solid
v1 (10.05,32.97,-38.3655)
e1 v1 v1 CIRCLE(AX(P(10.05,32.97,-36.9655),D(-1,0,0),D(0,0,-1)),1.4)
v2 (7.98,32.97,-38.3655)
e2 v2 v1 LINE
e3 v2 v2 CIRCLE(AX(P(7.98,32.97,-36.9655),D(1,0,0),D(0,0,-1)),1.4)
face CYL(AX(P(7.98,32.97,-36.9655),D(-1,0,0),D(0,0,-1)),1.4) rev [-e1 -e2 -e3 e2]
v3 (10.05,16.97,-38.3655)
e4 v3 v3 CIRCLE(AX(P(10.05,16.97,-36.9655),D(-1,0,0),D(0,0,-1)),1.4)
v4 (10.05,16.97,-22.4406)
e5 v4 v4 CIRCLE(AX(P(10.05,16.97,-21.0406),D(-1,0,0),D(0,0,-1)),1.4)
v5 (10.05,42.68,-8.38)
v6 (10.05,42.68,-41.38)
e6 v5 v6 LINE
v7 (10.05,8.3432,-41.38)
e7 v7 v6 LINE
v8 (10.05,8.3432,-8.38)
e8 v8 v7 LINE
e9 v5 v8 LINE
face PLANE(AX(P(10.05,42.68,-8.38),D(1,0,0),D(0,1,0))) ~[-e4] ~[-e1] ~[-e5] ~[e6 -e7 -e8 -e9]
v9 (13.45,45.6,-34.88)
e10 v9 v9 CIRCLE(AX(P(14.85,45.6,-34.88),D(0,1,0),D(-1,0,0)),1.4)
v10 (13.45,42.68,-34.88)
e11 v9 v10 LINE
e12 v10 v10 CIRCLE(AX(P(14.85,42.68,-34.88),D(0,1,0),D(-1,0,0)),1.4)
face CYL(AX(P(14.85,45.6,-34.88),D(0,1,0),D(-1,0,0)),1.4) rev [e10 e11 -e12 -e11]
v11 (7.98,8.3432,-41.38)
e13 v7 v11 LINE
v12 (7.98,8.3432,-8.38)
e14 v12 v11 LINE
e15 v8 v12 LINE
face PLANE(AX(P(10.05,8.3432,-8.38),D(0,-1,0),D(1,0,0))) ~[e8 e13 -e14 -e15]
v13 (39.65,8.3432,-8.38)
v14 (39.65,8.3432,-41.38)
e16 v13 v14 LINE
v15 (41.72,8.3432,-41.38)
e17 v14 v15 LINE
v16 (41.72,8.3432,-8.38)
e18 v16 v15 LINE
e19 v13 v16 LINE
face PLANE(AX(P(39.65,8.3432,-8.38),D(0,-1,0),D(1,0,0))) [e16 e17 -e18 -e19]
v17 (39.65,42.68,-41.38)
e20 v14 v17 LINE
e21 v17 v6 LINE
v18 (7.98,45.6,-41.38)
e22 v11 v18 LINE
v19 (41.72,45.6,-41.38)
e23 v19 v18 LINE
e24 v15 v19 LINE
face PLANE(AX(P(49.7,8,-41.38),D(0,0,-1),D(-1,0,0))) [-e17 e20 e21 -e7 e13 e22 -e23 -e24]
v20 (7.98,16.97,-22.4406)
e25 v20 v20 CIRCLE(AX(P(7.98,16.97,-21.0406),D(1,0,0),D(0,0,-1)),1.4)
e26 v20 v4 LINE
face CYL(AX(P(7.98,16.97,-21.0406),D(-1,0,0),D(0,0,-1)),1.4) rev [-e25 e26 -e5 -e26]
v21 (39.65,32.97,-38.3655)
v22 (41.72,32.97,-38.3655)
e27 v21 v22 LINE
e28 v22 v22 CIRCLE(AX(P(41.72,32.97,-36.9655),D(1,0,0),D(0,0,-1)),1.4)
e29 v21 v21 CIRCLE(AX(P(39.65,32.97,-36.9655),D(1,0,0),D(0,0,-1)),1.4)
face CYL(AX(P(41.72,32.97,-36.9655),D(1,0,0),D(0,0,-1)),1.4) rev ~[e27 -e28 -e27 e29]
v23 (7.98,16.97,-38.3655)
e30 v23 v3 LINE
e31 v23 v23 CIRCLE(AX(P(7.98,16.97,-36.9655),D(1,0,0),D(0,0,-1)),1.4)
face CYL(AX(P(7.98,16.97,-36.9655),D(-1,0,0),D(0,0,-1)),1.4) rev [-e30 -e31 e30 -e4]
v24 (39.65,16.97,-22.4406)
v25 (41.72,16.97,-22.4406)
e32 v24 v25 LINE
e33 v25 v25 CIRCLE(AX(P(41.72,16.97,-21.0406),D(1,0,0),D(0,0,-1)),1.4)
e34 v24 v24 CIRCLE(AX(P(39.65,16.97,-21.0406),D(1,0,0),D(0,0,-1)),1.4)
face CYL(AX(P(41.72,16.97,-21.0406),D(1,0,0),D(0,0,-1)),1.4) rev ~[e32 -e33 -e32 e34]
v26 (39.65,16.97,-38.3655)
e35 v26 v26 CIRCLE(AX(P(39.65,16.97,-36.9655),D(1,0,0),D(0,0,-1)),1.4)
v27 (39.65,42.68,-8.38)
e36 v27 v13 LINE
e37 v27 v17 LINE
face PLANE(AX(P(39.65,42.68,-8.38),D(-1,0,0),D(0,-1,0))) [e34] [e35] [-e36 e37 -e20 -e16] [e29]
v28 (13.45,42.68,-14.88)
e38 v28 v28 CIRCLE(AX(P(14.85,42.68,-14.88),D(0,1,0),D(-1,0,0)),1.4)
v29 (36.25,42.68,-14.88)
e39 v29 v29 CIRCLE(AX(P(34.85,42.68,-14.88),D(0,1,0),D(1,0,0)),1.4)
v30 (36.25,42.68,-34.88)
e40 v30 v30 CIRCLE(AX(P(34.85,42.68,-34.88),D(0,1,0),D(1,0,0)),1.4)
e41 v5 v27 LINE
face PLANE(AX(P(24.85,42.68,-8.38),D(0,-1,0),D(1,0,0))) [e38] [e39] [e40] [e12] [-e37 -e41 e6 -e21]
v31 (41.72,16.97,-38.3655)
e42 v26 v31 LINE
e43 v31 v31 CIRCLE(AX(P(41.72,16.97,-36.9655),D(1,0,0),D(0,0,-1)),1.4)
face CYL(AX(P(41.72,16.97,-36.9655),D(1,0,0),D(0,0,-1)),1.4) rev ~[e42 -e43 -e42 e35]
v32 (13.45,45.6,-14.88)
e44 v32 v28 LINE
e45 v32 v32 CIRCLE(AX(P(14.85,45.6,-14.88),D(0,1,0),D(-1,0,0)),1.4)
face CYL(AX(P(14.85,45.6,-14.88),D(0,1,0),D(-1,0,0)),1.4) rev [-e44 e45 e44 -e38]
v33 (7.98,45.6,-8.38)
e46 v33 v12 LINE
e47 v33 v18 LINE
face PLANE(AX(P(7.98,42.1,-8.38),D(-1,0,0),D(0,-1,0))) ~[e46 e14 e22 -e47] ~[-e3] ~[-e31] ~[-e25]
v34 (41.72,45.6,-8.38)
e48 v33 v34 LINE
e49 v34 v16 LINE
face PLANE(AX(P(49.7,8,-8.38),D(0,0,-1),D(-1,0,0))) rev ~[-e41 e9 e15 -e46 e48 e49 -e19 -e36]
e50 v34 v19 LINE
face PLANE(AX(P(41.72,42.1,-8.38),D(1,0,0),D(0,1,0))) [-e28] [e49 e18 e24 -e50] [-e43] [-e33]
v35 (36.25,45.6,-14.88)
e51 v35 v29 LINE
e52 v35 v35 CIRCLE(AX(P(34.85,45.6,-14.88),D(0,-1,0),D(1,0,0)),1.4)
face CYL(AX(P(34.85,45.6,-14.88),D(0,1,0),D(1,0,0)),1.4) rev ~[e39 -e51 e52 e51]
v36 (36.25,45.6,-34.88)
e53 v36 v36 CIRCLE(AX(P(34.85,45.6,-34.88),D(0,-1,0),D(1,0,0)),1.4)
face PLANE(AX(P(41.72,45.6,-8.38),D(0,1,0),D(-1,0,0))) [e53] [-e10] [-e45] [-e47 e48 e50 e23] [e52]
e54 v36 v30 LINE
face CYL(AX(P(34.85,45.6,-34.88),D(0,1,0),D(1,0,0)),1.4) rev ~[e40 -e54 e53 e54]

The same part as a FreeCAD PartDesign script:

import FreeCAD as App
import Part
import Sketcher
Q = App.Units.Quantity


def add_polygon(sketch, points):
    """Adds a closed chain of lines whose ends are joined by coincident constraints."""
    first, n = sketch.GeometryCount, len(points)
    for a, b in zip(points, points[1:] + points[:1]):
        sketch.addGeometry(Part.LineSegment(App.Vector(*a, 0), App.Vector(*b, 0)), False)
    for i in range(n):
        sketch.addConstraint(Sketcher.Constraint("Coincident", first + i, 2, first + (i + 1) % n, 1))

doc = App.newDocument("Part")
body = doc.addObject("PartDesign::Body", "Body")

sketch1 = body.newObject("Sketcher::SketchObject", "Sketch")
sketch1.AttachmentSupport = (doc.getObject("XY_Plane"), [""])
sketch1.MapMode = "FlatFace"
sketch1.AttachmentOffset = App.Placement(App.Vector(0, 0, -8.38), App.Rotation())
add_polygon(sketch1, [(41.7, 45.6), (41.7, 8.3), (39.6, 8.3), (39.6, 42.7), (24.9, 42.7), (24.9, 45.6)])
sketch1.addConstraint([
    Sketcher.Constraint("Vertical", 0),
    Sketcher.Constraint("Horizontal", 1),
    Sketcher.Constraint("Vertical", 2),
    Sketcher.Constraint("Horizontal", 3),
    Sketcher.Constraint("Vertical", 4),
    Sketcher.Constraint("Horizontal", 5),
    Sketcher.Constraint("DistanceX", 3, 2, 3, 1, Q("14.8 mm")),
    Sketcher.Constraint("DistanceX", 1, 2, 1, 1, Q("2.07 mm")),
    Sketcher.Constraint("DistanceY", 4, 1, 4, 2, Q("2.92 mm")),
    Sketcher.Constraint("DistanceY", -1, 1, 4, 2, Q("45.6 mm")),
    Sketcher.Constraint("DistanceX", -1, 1, 0, 2, Q("41.72 mm")),
    Sketcher.Constraint("DistanceY", 0, 2, 0, 1, Q("37.2568 mm")),
])
pad1 = body.newObject("PartDesign::Pad", "Pad")
pad1.Profile = sketch1
pad1.Length = 33
pad1.Reversed = True

sketch2 = body.newObject("Sketcher::SketchObject", "Sketch001")
sketch2.AttachmentSupport = (doc.getObject("YZ_Plane"), [""])
sketch2.MapMode = "FlatFace"
sketch2.AttachmentOffset = App.Placement(App.Vector(0, 0, 41.72), App.Rotation())
sketch2.addGeometry([
    Part.Circle(App.Vector(17, -21, 0), App.Vector(0, 0, 1), 1.4),
    Part.Circle(App.Vector(33, -37, 0), App.Vector(0, 0, 1), 1.4),
    Part.Circle(App.Vector(17, -37, 0), App.Vector(0, 0, 1), 1.4),
], False)
sketch2.addConstraint([
    Sketcher.Constraint("Equal", 0, 1),
    Sketcher.Constraint("Equal", 1, 2),
    Sketcher.Constraint("Horizontal", 1, 3, 2, 3),
    Sketcher.Constraint("Vertical", 0, 3, 2, 3),
    Sketcher.Constraint("Diameter", 0, Q("2.8 mm")),
    Sketcher.Constraint("DistanceX", 0, 3, 1, 3, Q("16 mm")),
    Sketcher.Constraint("DistanceX", -1, 1, 0, 3, Q("16.97 mm")),
    Sketcher.Constraint("DistanceY", 1, 3, 0, 3, Q("15.925 mm")),
    Sketcher.Constraint("DistanceY", 0, 3, -1, 1, Q("21.0406 mm")),
])
pocket1 = body.newObject("PartDesign::Pocket", "Pocket")
pocket1.Profile = sketch2
pocket1.Length = 33

sketch3 = body.newObject("Sketcher::SketchObject", "Sketch002")
sketch3.AttachmentSupport = (doc.getObject("XZ_Plane"), [""])
sketch3.MapMode = "FlatFace"
sketch3.AttachmentOffset = App.Placement(App.Vector(0, 0, -45.6), App.Rotation())
sketch3.addGeometry([
    Part.Circle(App.Vector(34.9, -14.9, 0), App.Vector(0, 0, 1), 1.4),
    Part.Circle(App.Vector(34.9, -34.9, 0), App.Vector(0, 0, 1), 1.4),
], False)
sketch3.addConstraint([
    Sketcher.Constraint("Equal", 0, 1),
    Sketcher.Constraint("Vertical", 0, 3, 1, 3),
    Sketcher.Constraint("Diameter", 0, Q("2.8 mm")),
    Sketcher.Constraint("DistanceY", 1, 3, 0, 3, Q("20 mm")),
    Sketcher.Constraint("DistanceX", -1, 1, 0, 3, Q("34.85 mm")),
    Sketcher.Constraint("DistanceY", 0, 3, -1, 1, Q("14.88 mm")),
])
pocket2 = body.newObject("PartDesign::Pocket", "Pocket001")
pocket2.Profile = sketch3
pocket2.Length = 33
pocket2.Reversed = True
doc.recompute()

datumplane = body.newObject("PartDesign::Plane", "DatumPlane")
datumplane.AttachmentSupport = (doc.getObject("YZ_Plane"), [""])
datumplane.MapMode = "FlatFace"
datumplane.AttachmentOffset = App.Placement(App.Vector(0, 0, 24.85), App.Rotation())
mirrored = body.newObject("PartDesign::Mirrored", "Mirrored")
mirrored.Originals = [pad1, pocket1, pocket2]
mirrored.MirrorPlane = (datumplane, [""])
body.Tip = mirrored

doc.recompute()
